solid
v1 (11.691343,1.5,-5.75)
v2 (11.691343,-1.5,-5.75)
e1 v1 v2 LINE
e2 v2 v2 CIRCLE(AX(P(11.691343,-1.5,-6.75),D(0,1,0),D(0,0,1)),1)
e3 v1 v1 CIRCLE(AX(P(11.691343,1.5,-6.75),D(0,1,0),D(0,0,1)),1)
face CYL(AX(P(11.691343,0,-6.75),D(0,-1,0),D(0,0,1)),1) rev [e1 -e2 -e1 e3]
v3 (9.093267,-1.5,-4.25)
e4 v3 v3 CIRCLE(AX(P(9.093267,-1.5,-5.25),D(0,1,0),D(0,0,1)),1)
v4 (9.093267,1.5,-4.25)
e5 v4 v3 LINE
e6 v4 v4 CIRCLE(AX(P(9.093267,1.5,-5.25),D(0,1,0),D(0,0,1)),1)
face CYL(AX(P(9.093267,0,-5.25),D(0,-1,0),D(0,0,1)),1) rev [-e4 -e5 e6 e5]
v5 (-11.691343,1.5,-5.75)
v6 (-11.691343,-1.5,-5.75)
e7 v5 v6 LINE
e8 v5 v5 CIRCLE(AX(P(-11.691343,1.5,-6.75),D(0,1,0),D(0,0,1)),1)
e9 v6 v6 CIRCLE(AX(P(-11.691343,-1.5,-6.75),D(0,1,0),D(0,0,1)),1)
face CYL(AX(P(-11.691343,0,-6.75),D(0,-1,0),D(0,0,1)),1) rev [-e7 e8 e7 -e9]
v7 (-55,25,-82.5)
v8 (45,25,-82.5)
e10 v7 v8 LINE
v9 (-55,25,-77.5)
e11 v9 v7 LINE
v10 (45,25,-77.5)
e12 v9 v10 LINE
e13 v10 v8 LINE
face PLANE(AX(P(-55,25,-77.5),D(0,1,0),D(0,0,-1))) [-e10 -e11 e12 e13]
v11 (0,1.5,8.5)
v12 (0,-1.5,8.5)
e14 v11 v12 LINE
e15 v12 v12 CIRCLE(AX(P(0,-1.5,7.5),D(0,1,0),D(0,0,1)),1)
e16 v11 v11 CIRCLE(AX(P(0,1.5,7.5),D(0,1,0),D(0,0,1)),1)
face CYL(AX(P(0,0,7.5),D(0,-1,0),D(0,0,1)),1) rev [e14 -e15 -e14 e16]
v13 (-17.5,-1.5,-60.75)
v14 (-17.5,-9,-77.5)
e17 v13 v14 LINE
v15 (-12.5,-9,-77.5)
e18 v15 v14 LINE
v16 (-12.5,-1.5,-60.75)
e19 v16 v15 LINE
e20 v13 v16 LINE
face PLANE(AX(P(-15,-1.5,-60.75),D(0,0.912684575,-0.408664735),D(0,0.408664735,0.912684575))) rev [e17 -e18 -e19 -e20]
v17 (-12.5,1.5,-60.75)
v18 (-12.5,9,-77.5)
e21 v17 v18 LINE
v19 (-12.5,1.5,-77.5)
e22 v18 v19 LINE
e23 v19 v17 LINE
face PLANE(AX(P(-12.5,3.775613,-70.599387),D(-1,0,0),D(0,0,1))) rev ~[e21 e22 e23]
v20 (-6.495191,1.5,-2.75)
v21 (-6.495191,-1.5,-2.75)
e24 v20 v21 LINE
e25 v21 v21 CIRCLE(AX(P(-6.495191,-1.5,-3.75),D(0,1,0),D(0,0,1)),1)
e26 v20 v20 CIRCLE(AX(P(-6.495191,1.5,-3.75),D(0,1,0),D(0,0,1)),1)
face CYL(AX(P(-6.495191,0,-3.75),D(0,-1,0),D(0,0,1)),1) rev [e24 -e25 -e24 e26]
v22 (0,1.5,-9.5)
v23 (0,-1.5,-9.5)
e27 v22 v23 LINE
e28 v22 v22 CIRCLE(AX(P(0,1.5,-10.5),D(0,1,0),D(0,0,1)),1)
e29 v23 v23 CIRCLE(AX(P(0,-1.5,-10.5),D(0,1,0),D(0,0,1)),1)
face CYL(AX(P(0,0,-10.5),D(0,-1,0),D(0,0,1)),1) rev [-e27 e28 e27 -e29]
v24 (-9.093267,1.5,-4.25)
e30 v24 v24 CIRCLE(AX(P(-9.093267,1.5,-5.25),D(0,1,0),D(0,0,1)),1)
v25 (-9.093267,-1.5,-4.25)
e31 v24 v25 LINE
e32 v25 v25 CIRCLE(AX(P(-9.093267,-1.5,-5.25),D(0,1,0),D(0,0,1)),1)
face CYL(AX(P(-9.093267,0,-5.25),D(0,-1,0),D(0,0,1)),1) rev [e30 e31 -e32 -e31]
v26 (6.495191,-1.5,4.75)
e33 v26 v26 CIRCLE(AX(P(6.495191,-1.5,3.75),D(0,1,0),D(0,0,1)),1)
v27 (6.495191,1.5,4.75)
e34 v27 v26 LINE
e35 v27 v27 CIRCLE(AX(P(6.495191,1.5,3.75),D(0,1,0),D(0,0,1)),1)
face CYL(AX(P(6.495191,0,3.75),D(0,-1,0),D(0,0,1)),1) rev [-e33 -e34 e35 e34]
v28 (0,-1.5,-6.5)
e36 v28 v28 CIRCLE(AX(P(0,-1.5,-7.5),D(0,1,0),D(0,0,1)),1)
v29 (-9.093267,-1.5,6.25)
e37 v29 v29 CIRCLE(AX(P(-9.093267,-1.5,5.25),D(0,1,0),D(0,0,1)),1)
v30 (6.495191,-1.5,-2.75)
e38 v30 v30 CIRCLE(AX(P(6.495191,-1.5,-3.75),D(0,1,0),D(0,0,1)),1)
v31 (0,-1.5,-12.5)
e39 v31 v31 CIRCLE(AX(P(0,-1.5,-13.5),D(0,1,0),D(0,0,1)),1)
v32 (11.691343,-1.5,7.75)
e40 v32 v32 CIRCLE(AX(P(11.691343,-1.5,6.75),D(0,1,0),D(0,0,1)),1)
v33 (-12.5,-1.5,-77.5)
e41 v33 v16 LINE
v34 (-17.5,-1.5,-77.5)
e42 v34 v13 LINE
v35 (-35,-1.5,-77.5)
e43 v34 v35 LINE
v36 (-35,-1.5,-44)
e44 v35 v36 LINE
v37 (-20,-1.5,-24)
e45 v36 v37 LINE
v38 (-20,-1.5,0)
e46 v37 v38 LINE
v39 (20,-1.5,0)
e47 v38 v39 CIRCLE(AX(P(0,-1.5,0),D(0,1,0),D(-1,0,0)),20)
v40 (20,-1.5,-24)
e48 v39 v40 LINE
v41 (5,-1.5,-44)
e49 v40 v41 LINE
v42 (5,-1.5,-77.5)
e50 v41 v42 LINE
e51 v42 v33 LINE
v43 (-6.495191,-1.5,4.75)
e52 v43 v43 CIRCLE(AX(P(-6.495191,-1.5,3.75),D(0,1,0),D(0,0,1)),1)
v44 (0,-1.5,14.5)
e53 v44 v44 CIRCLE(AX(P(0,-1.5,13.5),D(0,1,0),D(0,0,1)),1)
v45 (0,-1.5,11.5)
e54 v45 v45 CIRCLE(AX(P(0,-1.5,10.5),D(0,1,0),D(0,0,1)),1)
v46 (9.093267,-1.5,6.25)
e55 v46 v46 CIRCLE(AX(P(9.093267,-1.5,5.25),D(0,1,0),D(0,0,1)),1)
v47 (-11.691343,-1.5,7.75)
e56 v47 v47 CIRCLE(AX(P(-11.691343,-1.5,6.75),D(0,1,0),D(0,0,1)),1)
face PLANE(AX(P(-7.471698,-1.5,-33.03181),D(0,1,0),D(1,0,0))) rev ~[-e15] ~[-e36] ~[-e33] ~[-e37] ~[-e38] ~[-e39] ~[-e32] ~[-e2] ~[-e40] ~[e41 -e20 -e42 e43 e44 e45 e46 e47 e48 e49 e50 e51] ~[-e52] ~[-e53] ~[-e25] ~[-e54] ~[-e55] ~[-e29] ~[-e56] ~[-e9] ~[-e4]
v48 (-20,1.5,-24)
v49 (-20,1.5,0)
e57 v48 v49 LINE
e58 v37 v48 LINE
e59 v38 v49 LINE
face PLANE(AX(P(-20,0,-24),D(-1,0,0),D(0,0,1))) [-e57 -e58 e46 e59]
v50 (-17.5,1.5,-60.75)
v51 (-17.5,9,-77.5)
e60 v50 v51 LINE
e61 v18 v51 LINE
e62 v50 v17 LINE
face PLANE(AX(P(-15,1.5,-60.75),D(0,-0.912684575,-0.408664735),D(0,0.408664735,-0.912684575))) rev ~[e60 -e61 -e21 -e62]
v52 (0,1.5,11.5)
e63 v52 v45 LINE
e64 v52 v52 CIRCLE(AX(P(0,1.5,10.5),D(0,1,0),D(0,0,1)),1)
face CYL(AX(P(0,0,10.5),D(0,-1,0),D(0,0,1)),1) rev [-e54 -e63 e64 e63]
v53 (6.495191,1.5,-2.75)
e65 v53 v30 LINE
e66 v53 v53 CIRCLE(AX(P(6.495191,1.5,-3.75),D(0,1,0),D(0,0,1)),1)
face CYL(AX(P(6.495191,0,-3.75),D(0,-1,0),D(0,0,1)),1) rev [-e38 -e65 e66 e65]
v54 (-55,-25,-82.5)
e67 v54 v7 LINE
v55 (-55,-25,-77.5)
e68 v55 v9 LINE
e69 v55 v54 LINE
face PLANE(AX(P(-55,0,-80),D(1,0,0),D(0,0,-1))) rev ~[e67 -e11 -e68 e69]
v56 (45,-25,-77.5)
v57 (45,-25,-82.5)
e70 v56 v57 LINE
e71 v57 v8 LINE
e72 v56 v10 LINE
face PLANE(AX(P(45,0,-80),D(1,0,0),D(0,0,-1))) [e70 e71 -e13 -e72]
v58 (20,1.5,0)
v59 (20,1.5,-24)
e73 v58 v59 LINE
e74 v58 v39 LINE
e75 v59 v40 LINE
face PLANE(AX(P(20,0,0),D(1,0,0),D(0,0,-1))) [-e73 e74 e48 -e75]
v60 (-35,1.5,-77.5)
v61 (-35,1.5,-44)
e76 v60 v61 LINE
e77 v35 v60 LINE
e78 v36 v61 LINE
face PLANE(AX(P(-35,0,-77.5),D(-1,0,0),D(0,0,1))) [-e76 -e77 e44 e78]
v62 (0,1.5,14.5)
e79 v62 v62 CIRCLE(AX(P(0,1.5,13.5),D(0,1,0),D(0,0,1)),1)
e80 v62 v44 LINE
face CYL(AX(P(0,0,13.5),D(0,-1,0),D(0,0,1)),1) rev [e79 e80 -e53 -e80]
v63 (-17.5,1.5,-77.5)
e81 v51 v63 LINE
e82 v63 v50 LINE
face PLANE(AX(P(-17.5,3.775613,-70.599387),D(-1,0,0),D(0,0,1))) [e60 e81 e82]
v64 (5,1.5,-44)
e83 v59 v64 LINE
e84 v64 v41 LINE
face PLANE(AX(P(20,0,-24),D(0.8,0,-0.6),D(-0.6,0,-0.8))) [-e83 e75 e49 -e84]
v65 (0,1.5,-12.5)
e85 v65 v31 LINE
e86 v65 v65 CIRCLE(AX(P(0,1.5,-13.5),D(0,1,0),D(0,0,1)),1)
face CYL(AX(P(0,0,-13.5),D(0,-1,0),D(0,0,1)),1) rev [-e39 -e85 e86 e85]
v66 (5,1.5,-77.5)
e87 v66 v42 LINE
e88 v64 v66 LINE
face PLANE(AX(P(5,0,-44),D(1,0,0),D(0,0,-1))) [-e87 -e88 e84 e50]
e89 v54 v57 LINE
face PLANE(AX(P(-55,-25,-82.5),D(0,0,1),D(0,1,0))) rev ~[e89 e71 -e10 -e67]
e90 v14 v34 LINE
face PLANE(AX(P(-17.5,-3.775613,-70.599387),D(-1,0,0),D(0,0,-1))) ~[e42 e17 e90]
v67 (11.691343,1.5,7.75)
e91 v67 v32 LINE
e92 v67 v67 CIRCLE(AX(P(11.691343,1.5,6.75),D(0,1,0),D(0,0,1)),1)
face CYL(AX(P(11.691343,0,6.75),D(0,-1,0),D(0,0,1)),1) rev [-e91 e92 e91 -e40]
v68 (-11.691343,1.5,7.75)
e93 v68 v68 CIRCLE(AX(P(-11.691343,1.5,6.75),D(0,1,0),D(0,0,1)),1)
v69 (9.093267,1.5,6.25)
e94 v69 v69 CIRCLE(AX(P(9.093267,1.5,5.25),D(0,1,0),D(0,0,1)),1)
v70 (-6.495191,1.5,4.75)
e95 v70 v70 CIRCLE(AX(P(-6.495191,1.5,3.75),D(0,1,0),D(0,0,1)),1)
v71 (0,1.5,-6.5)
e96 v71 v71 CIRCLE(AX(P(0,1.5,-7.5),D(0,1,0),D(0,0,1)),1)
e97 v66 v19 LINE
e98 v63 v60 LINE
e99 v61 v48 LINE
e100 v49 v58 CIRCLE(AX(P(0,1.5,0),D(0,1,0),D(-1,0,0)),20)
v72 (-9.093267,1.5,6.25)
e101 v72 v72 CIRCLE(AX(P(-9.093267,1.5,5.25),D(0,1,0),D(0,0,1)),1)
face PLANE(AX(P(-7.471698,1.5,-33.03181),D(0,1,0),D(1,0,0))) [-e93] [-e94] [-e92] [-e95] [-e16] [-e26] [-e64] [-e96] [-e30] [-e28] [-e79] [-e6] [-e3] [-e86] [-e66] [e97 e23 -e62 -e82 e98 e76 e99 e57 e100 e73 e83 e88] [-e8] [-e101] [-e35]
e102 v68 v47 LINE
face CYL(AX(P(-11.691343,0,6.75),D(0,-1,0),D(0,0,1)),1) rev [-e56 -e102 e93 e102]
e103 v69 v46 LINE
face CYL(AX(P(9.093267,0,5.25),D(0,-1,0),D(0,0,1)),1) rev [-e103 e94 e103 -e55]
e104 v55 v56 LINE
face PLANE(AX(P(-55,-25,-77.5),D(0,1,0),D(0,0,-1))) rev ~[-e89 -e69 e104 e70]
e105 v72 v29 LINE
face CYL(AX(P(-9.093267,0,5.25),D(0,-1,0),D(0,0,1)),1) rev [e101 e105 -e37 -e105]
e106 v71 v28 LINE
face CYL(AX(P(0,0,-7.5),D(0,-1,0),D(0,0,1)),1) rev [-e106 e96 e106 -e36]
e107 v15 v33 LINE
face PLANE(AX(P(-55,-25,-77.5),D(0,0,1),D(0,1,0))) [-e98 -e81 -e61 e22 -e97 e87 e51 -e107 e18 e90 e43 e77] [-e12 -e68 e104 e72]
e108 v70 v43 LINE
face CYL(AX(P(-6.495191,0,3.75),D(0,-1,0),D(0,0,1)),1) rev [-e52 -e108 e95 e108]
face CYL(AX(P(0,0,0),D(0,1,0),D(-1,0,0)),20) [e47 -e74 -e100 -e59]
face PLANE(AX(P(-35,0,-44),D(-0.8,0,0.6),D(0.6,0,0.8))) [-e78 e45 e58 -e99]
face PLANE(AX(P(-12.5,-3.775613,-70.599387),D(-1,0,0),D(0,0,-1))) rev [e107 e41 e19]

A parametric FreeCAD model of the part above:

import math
import FreeCAD as App
import Part
import Sketcher

V = App.Vector


def add_polygon(sketch, points):
    """Adds a closed chain of lines whose ends are joined by coincident constraints."""
    first, n = sketch.GeometryCount, len(points)
    for a, b in zip(points, points[1:] + points[:1]):
        sketch.addGeometry(Part.LineSegment(App.Vector(*a, 0), App.Vector(*b, 0)), False)
    for i in range(n):
        sketch.addConstraint(Sketcher.Constraint("Coincident", first + i, 2, first + (i + 1) % n, 1))

doc = App.newDocument("Part")
body = doc.addObject("PartDesign::Body", "Body")

sketch1 = body.newObject("Sketcher::SketchObject", "Sketch")
sketch1.AttachmentSupport = (doc.getObject("XZ_Plane"), [""])
sketch1.MapMode = "FlatFace"
sketch1.addGeometry([
    Part.LineSegment(V(5, -77.5, 0), V(-35, -77.5, 0)),
    Part.LineSegment(V(-35, -77.5, 0), V(-35, -44, 0)),
    Part.LineSegment(V(-35, -44, 0), V(-20, -24, 0)),
    Part.LineSegment(V(-20, -24, 0), V(-20, 0, 0)),
    Part.ArcOfCircle(Part.Circle(V(0, 0, 0), V(0, 0, 1), 20), math.radians(0), math.radians(180)),
    Part.LineSegment(V(20, 0, 0), V(20, -24, 0)),
    Part.LineSegment(V(20, -24, 0), V(5, -44, 0)),
    Part.LineSegment(V(5, -44, 0), V(5, -77.5, 0)),
    Part.Circle(V(-11.7, 6.8, 0), V(0, 0, 1), 1),
    Part.Circle(V(-9.1, 5.2, 0), V(0, 0, 1), 1),
    Part.Circle(V(-6.5, 3.8, 0), V(0, 0, 1), 1),
    Part.Circle(V(0, 13.5, 0), V(0, 0, 1), 1),
    Part.Circle(V(0, 10.5, 0), V(0, 0, 1), 1),
    Part.Circle(V(0, 7.5, 0), V(0, 0, 1), 1),
    Part.Circle(V(6.5, 3.8, 0), V(0, 0, 1), 1),
    Part.Circle(V(9.1, 5.2, 0), V(0, 0, 1), 1),
    Part.Circle(V(11.7, 6.8, 0), V(0, 0, 1), 1),
    Part.Circle(V(-11.7, -6.8, 0), V(0, 0, 1), 1),
    Part.Circle(V(-9.1, -5.2, 0), V(0, 0, 1), 1),
    Part.Circle(V(-6.5, -3.8, 0), V(0, 0, 1), 1),
    Part.Circle(V(6.5, -3.8, 0), V(0, 0, 1), 1),
    Part.Circle(V(9.1, -5.2, 0), V(0, 0, 1), 1),
    Part.Circle(V(11.7, -6.8, 0), V(0, 0, 1), 1),
    Part.Circle(V(0, -7.5, 0), V(0, 0, 1), 1),
    Part.Circle(V(0, -10.5, 0), V(0, 0, 1), 1),
    Part.Circle(V(0, -13.5, 0), V(0, 0, 1), 1),
], False)
sketch1.addConstraint([
    Sketcher.Constraint("Coincident", 0, 2, 1, 1),
    Sketcher.Constraint("Coincident", 1, 2, 2, 1),
    Sketcher.Constraint("Coincident", 2, 2, 3, 1),
    Sketcher.Constraint("Tangent", 3, 2, 4, 2),
    Sketcher.Constraint("Tangent", 4, 1, 5, 1),
    Sketcher.Constraint("Coincident", 5, 2, 6, 1),
    Sketcher.Constraint("Coincident", 6, 2, 7, 1),
    Sketcher.Constraint("Coincident", 7, 2, 0, 1),
    Sketcher.Constraint("Horizontal", 0),
    Sketcher.Constraint("Vertical", 1),
    Sketcher.Constraint("Vertical", 3),
    Sketcher.Constraint("Vertical", 5),
    Sketcher.Constraint("Vertical", 7),
    Sketcher.Constraint("Coincident", 4, 3, -1, 1),
    Sketcher.Constraint("Equal", 8, 9),
    Sketcher.Constraint("Equal", 9, 10),
    Sketcher.Constraint("Equal", 10, 11),
    Sketcher.Constraint("Equal", 11, 12),
    Sketcher.Constraint("Equal", 12, 13),
    Sketcher.Constraint("Equal", 13, 14),
    Sketcher.Constraint("Equal", 14, 15),
    Sketcher.Constraint("Equal", 15, 16),
    Sketcher.Constraint("Equal", 16, 17),
    Sketcher.Constraint("Equal", 17, 18),
    Sketcher.Constraint("Equal", 18, 19),
    Sketcher.Constraint("Equal", 19, 20),
    Sketcher.Constraint("Equal", 20, 21),
    Sketcher.Constraint("Equal", 21, 22),
    Sketcher.Constraint("Equal", 22, 23),
    Sketcher.Constraint("Equal", 23, 24),
    Sketcher.Constraint("Equal", 24, 25),
    Sketcher.Constraint("Symmetric", 16, 3, 17, 3, -1, 1),
    Sketcher.Constraint("Symmetric", 15, 3, 18, 3, -1, 1),
    Sketcher.Constraint("Symmetric", 14, 3, 19, 3, -1, 1),
    Sketcher.Constraint("Symmetric", 10, 3, 20, 3, -1, 1),
    Sketcher.Constraint("Symmetric", 9, 3, 21, 3, -1, 1),
    Sketcher.Constraint("Symmetric", 8, 3, 22, 3, -1, 1),
    Sketcher.Constraint("Symmetric", 13, 3, 23, 3, -1, 1),
    Sketcher.Constraint("Symmetric", 12, 3, 24, 3, -1, 1),
    Sketcher.Constraint("Symmetric", 11, 3, 25, 3, -1, 1),
    Sketcher.Constraint("Symmetric", 10, 3, 14, 3, -2),
    Sketcher.Constraint("Symmetric", 9, 3, 15, 3, -2),
    Sketcher.Constraint("Symmetric", 8, 3, 16, 3, -2),
    Sketcher.Constraint("PointOnObject", 11, 3, -2),
    Sketcher.Constraint("PointOnObject", 12, 3, -2),
    Sketcher.Constraint("PointOnObject", 13, 3, -2),
    Sketcher.Constraint("Parallel", 2, 6),
    Sketcher.Constraint("Horizontal", 2, 2, 5, 2),
    Sketcher.Constraint("Horizontal", 1, 2, 6, 2),
    Sketcher.Constraint("Diameter", 8, 2.0),
    Sketcher.Constraint("Radius", 4, 20.0),
    Sketcher.Constraint("DistanceY", 3, 1, 3, 2, 24.0),
    Sketcher.Constraint("Distance", 2, 25.0),
    Sketcher.Constraint("DistanceY", 1, 1, 1, 2, 33.5),
    Sketcher.Constraint("DistanceX", 0, 2, -1, 1, 35.0),
    Sketcher.Constraint("DistanceY", 10, 3, 8, 3, 3.0),
    Sketcher.Constraint("DistanceY", 12, 3, 11, 3, 3.0),
    Sketcher.Constraint("DistanceY", 13, 3, 12, 3, 3.0),
    Sketcher.Constraint("DistanceY", 17, 3, 9, 3, 12.0),
    Sketcher.Constraint("DistanceY", 0, 2, 25, 3, 64.0),
    Sketcher.Constraint("DistanceY", 9, 3, 8, 3, 1.5),
    Sketcher.Constraint("DistanceX", 10, 3, -1, 1, 6.495191),
    Sketcher.Constraint("DistanceX", 8, 3, -1, 1, 11.691343),
    Sketcher.Constraint("DistanceX", 9, 3, -1, 1, 9.093267),
])
pad1 = body.newObject("PartDesign::Pad", "Pad")
pad1.Profile = sketch1
pad1.Length = 3
pad1.Midplane = True

sketch2 = body.newObject("Sketcher::SketchObject", "Sketch001")
sketch2.AttachmentSupport = (doc.getObject("YZ_Plane"), [""])
sketch2.MapMode = "FlatFace"
sketch2.AttachmentOffset = App.Placement(V(0, 0, -15), App.Rotation())
add_polygon(sketch2, [(9, -78), (2, -61), (2, -78)])
sketch2.addConstraint([
    Sketcher.Constraint("Vertical", 1),
    Sketcher.Constraint("Horizontal", 2),
    Sketcher.Constraint("DistanceX", 2, 1, 2, 2, 7.5),
    Sketcher.Constraint("DistanceX", -1, 1, 2, 2, 9.0),
    Sketcher.Constraint("DistanceY", 1, 2, 1, 1, 16.75),
    Sketcher.Constraint("DistanceY", 1, 2, -1, 1, 77.5),
])
pad2 = body.newObject("PartDesign::Pad", "Pad001")
pad2.Profile = sketch2
pad2.Length = 5
pad2.Midplane = True
doc.recompute()

mirrored = body.newObject("PartDesign::Mirrored", "Mirrored")
mirrored.Originals = [pad2]
mirrored.MirrorPlane = (doc.getObject("XZ_Plane"), [""])
body.Tip = mirrored

sketch3 = body.newObject("Sketcher::SketchObject", "Sketch002")
sketch3.AttachmentSupport = (doc.getObject("YZ_Plane"), [""])
sketch3.MapMode = "FlatFace"
sketch3.AttachmentOffset = App.Placement(V(0, 0, -15), App.Rotation())
add_polygon(sketch3, [(25, -78), (-25, -78), (-25, -82), (25, -82)])
sketch3.addConstraint([
    Sketcher.Constraint("Horizontal", 0),
    Sketcher.Constraint("Vertical", 1),
    Sketcher.Constraint("Horizontal", 2),
    Sketcher.Constraint("Vertical", 3),
    Sketcher.Constraint("DistanceX", 0, 2, 0, 1, 50.0),
    Sketcher.Constraint("DistanceY", 1, 2, 1, 1, 5.0),
    Sketcher.Constraint("DistanceX", 0, 2, -1, 1, 25.0),
    Sketcher.Constraint("DistanceY", 0, 2, -1, 1, 77.5),
])
pad3 = body.newObject("PartDesign::Pad", "Pad002")
pad3.Profile = sketch3
pad3.Type = "TwoLengths"
pad3.Length = 60
pad3.Length2 = 40

doc.recompute()
